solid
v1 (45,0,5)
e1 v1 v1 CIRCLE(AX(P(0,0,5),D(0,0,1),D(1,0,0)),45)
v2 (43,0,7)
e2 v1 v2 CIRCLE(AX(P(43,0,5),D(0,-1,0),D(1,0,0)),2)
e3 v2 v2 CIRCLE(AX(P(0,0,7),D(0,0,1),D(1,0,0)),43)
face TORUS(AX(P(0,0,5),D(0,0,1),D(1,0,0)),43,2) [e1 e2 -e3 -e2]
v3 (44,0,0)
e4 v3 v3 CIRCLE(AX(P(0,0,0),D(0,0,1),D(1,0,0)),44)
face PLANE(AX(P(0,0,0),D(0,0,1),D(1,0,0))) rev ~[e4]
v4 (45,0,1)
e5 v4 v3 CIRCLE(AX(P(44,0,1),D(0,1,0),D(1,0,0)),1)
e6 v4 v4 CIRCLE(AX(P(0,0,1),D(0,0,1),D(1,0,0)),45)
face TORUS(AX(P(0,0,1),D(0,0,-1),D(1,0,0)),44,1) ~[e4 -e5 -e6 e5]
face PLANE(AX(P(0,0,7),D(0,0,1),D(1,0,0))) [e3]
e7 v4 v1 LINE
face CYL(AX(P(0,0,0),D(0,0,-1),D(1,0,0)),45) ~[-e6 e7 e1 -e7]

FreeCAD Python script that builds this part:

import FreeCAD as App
import Part
import Sketcher


def edges_at(feature, points):
    """Names of the edges that pass closest to the given points."""
    edges = feature.Shape.Edges
    near = lambda p: min(range(len(edges)), key=lambda i: edges[i].distToShape(Part.Vertex(*p))[0])
    return sorted({f"Edge{near(p) + 1}" for p in points})

doc = App.newDocument("Part")
body = doc.addObject("PartDesign::Body", "Body")

# Sketch on XY plane
sketch1 = body.newObject("Sketcher::SketchObject", "Sketch")
sketch1.AttachmentSupport = (doc.getObject("XY_Plane"), [""])
sketch1.MapMode = "FlatFace"
sketch1.addGeometry(Part.Circle(App.Vector(0, 0, 0), App.Vector(0, 0, 1), 45), False)
sketch1.addConstraint([
    Sketcher.Constraint("Coincident", 0, 3, -1, 1),
    Sketcher.Constraint("Diameter", 0, 90.0),
])
pad1 = body.newObject("PartDesign::Pad", "Pad")
pad1.Profile = sketch1
pad1.Length = 7
doc.recompute()

fillet = body.newObject("PartDesign::Fillet", "Fillet")
fillet.Base = (pad1, edges_at(pad1, [(-45, 0, 7)]))
fillet.Radius = 2
doc.recompute()

fillet2 = body.newObject("PartDesign::Fillet", "Fillet001")
fillet2.Base = (fillet, edges_at(fillet, [(-45, 0, 0)]))
fillet2.Radius = 1

doc.recompute()
